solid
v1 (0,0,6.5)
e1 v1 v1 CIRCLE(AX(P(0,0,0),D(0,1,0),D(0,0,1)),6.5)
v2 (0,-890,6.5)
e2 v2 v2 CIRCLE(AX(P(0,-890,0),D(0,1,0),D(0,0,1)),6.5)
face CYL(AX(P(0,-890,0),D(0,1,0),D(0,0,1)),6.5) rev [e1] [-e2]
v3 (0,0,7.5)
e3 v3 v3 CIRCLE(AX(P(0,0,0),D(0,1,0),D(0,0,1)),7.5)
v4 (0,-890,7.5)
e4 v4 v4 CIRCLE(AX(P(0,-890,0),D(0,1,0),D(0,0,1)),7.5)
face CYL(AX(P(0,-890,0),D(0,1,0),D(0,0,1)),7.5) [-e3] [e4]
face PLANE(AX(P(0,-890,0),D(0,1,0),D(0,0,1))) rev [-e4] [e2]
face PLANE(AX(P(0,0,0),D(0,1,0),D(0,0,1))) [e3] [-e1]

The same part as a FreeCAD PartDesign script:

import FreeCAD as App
import Part
import Sketcher
from FreeCAD import Vector

doc = App.newDocument("Part")
body = doc.addObject("PartDesign::Body", "Body")

sketch1 = body.newObject("Sketcher::SketchObject", "Sketch")
sketch1.AttachmentSupport = (doc.getObject("XZ_Plane"), [""])
sketch1.MapMode = "FlatFace"
sketch1.addGeometry([
    Part.Circle(Vector(0, 0, 0), Vector(0, 0, 1), 8),
    Part.Circle(Vector(0, 0, 0), Vector(0, 0, 1), 6),
], False)
sketch1.addConstraint([
    Sketcher.Constraint("Coincident", 0, 3, -1, 1),
    Sketcher.Constraint("Coincident", 1, 3, -1, 1),
    Sketcher.Constraint("Diameter", 0, 15.0),
    Sketcher.Constraint("Diameter", 1, 13.0),
])
pad1 = body.newObject("PartDesign::Pad", "Pad")
pad1.Profile = sketch1
pad1.Length = 890

doc.recompute()
